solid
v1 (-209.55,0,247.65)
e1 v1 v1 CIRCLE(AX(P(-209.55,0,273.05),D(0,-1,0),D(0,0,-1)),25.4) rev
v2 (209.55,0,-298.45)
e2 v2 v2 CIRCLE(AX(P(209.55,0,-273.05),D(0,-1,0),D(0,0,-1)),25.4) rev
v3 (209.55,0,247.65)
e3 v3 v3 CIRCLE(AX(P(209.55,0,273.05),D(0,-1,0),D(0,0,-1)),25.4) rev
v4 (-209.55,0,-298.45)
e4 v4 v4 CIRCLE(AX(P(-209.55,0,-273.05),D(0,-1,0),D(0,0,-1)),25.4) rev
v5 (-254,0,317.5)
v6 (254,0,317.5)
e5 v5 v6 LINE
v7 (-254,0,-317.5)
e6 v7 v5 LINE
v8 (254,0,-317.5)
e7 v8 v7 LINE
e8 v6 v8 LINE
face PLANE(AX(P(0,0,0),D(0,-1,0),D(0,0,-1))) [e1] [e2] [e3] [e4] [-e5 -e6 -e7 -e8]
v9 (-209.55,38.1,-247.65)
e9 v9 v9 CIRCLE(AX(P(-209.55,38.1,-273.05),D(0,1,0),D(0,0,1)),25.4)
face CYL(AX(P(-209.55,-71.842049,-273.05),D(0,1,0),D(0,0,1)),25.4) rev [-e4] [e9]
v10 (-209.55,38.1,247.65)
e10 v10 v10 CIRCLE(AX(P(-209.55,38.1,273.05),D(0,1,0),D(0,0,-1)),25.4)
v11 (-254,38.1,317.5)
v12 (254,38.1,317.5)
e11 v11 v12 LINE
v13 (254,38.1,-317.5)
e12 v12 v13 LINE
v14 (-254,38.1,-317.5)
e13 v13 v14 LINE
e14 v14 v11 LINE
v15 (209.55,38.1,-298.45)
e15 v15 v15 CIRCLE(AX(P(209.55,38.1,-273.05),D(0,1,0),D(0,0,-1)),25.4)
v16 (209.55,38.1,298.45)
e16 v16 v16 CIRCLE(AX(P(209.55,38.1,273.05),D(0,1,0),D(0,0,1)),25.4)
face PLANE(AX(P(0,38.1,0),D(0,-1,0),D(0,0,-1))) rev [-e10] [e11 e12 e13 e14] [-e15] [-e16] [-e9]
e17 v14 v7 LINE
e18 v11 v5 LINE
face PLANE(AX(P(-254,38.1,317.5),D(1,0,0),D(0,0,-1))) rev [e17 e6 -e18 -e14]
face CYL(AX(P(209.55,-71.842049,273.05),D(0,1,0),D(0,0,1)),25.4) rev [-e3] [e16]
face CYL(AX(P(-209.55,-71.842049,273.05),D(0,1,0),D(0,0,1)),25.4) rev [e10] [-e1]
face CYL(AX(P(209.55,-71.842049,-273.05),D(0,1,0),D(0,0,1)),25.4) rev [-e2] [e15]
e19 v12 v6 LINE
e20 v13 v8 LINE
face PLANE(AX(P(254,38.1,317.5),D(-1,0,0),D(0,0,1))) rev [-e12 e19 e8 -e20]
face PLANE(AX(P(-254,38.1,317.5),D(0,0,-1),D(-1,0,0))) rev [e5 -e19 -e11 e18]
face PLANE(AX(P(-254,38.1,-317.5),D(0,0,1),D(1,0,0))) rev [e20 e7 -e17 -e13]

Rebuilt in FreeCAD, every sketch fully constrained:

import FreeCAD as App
import Part
import Sketcher
Q = App.Units.Quantity

doc = App.newDocument("Part")
body = doc.addObject("PartDesign::Body", "Body")

sketch1 = doc.addObject("Sketcher::SketchObject", "Sketch")
body.addObject(sketch1)
sketch1.AttachmentSupport = (doc.XZ_Plane, [""])
sketch1.MapMode = "FlatFace"
sketch1.addGeometry(Part.LineSegment(App.Vector(-254, -318, 0), App.Vector(-254, 318, 0)), False)
sketch1.addGeometry(Part.LineSegment(App.Vector(-254, 318, 0), App.Vector(254, 318, 0)), False)
sketch1.addGeometry(Part.LineSegment(App.Vector(254, 318, 0), App.Vector(254, -318, 0)), False)
sketch1.addGeometry(Part.LineSegment(App.Vector(254, -318, 0), App.Vector(-254, -318, 0)), False)
sketch1.addConstraint(Sketcher.Constraint("Coincident", 0, 2, 1, 1))
sketch1.addConstraint(Sketcher.Constraint("Coincident", 1, 2, 2, 1))
sketch1.addConstraint(Sketcher.Constraint("Coincident", 2, 2, 3, 1))
sketch1.addConstraint(Sketcher.Constraint("Coincident", 3, 2, 0, 1))
sketch1.addConstraint(Sketcher.Constraint("Vertical", 0))
sketch1.addConstraint(Sketcher.Constraint("Horizontal", 1))
sketch1.addConstraint(Sketcher.Constraint("Vertical", 2))
sketch1.addConstraint(Sketcher.Constraint("Horizontal", 3))
sketch1.addConstraint(Sketcher.Constraint("Symmetric", 0, 2, 2, 2, -1, 1))
sketch1.addConstraint(Sketcher.Constraint("DistanceX", 1, 1, 1, 2, Q("20 in")))
sketch1.addConstraint(Sketcher.Constraint("DistanceY", 0, 1, 0, 2, Q("25 in")))
pad1 = doc.addObject("PartDesign::Pad", "Pad")
body.addObject(pad1)
pad1.Profile = sketch1
pad1.Length = Q("1.5 in")
pad1.Reversed = True

sketch2 = doc.addObject("Sketcher::SketchObject", "Sketch001")
body.addObject(sketch2)
sketch2.AttachmentSupport = (doc.XZ_Plane, [""])
sketch2.MapMode = "FlatFace"
sketch2.AttachmentOffset = App.Placement(App.Vector(0, 0, -1.5 * 25.4), App.Rotation())
sketch2.addGeometry(Part.Circle(App.Vector(-210, -273, 0), App.Vector(0, 0, 1), 25), False)
sketch2.addGeometry(Part.Circle(App.Vector(210, -273, 0), App.Vector(0, 0, 1), 25), False)
sketch2.addGeometry(Part.Circle(App.Vector(210, 273, 0), App.Vector(0, 0, 1), 25), False)
sketch2.addGeometry(Part.Circle(App.Vector(-210, 273, 0), App.Vector(0, 0, 1), 25), False)
sketch2.addConstraint(Sketcher.Constraint("Equal", 0, 1))
sketch2.addConstraint(Sketcher.Constraint("Equal", 1, 2))
sketch2.addConstraint(Sketcher.Constraint("Equal", 2, 3))
sketch2.addConstraint(Sketcher.Constraint("Symmetric", 0, 3, 2, 3, -1, 1))
sketch2.addConstraint(Sketcher.Constraint("Symmetric", 1, 3, 3, 3, -1, 1))
sketch2.addConstraint(Sketcher.Constraint("Symmetric", 0, 3, 1, 3, -2))
sketch2.addConstraint(Sketcher.Constraint("Diameter", 0, Q("2 in")))
sketch2.addConstraint(Sketcher.Constraint("DistanceX", 0, 3, 1, 3, Q("16.5 in")))
sketch2.addConstraint(Sketcher.Constraint("DistanceY", 1, 3, 2, 3, Q("21.5 in")))
pocket1 = doc.addObject("PartDesign::Pocket", "Pocket")
body.addObject(pocket1)
pocket1.Profile = sketch2
pocket1.Length = Q("1.5 in")
pocket1.Reversed = True

doc.recompute()
